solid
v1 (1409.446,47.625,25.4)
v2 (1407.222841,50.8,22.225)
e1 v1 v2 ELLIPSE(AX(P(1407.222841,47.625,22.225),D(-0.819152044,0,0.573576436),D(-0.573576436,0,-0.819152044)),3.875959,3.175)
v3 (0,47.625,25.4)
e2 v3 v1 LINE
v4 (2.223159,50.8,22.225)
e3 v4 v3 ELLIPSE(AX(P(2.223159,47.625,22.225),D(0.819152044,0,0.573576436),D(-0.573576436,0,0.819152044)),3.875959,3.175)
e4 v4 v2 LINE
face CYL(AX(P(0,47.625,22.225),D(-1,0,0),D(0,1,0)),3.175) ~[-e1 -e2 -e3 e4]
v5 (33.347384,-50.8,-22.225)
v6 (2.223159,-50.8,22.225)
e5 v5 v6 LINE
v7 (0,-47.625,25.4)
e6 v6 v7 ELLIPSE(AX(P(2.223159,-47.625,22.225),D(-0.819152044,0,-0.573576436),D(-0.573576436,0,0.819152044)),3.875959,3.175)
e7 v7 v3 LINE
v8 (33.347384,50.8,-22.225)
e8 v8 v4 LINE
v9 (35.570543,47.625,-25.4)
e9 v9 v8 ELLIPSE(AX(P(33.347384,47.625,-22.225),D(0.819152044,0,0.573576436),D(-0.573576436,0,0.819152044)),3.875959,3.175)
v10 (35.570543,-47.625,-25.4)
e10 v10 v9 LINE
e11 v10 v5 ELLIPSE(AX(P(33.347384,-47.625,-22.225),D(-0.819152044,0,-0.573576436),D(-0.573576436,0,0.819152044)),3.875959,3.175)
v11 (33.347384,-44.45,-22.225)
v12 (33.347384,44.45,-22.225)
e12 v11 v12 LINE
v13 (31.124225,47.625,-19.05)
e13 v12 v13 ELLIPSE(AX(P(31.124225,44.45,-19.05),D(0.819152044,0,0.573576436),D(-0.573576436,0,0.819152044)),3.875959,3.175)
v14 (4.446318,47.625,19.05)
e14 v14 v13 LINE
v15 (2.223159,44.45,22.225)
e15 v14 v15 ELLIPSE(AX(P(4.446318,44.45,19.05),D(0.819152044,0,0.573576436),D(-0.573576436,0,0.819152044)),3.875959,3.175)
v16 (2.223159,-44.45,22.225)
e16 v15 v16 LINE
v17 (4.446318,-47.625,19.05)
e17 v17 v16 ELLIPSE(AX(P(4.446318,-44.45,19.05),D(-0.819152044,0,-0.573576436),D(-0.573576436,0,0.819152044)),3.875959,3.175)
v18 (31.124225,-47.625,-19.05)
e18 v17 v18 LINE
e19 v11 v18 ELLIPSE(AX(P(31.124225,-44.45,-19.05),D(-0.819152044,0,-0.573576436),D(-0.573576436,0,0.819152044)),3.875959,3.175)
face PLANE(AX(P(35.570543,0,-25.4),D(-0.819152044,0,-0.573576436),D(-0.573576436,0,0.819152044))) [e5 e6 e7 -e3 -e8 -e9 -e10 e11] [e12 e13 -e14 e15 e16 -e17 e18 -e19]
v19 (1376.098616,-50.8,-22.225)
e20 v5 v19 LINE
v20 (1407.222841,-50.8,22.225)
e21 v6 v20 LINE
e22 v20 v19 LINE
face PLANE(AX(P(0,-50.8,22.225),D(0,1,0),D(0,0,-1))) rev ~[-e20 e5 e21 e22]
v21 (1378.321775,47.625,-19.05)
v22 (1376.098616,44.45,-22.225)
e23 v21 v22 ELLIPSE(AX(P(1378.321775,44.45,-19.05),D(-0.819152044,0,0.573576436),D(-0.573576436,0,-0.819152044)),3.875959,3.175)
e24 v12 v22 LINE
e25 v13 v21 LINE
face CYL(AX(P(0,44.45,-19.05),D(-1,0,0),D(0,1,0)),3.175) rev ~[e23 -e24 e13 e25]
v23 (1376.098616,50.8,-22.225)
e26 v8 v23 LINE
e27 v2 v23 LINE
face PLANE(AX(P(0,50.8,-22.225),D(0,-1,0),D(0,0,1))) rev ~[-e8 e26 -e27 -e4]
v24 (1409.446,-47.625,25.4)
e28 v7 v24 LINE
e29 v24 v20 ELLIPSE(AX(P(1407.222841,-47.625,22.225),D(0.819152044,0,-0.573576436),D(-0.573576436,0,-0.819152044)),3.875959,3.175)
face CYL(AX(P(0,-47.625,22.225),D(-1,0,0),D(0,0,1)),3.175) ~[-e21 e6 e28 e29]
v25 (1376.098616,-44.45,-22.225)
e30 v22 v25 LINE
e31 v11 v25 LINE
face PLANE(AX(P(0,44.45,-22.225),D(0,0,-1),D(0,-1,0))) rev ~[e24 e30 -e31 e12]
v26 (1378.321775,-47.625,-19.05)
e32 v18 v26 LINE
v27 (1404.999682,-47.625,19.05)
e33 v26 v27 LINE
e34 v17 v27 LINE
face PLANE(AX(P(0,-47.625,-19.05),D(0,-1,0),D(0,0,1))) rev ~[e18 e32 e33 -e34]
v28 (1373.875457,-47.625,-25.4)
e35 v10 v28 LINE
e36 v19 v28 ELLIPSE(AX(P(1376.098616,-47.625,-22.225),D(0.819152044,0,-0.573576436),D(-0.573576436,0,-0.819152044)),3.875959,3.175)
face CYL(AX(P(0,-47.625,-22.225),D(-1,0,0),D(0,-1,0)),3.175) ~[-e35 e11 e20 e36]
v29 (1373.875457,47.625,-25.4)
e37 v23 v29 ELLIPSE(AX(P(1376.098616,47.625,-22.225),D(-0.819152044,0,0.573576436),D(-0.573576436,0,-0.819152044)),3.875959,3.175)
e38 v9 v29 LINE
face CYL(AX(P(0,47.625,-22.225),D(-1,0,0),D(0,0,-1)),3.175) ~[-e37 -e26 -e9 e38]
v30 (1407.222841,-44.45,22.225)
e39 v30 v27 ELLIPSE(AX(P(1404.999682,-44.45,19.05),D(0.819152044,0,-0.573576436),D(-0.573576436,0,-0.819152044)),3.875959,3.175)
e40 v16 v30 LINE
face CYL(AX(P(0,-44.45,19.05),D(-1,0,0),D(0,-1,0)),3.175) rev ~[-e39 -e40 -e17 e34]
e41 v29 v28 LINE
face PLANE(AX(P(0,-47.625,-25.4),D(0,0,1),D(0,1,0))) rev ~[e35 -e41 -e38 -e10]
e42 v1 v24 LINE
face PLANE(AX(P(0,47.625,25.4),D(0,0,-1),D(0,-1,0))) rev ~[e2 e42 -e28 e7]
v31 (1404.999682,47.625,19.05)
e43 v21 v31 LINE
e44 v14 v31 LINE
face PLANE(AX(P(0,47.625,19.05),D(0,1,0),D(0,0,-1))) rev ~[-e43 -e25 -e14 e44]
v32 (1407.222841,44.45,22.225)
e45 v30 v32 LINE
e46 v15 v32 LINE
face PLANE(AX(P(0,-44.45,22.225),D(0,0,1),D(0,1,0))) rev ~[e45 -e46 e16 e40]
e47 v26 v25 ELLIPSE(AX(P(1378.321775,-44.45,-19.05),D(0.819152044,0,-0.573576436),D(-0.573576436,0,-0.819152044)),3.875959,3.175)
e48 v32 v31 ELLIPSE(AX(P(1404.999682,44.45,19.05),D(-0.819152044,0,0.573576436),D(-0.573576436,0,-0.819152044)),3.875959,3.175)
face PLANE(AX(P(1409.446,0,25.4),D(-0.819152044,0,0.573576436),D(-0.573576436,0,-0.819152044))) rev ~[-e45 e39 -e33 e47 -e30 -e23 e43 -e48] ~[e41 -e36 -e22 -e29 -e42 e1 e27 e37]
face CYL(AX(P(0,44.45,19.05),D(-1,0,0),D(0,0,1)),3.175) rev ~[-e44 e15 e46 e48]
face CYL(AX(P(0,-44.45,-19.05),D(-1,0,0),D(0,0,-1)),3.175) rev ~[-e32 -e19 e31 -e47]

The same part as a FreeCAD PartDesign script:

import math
import FreeCAD as App
import Part
import Sketcher
from FreeCAD import Vector
Q = App.Units.Quantity


def add_polygon(sketch, points):
    """Adds a closed chain of lines whose ends are joined by coincident constraints."""
    first, n = sketch.GeometryCount, len(points)
    for a, b in zip(points, points[1:] + points[:1]):
        sketch.addGeometry(Part.LineSegment(App.Vector(*a, 0), App.Vector(*b, 0)), False)
    for i in range(n):
        sketch.addConstraint(Sketcher.Constraint("Coincident", first + i, 2, first + (i + 1) % n, 1))

doc = App.newDocument("Part")
body = doc.addObject("PartDesign::Body", "Body")

sketch1 = doc.addObject("Sketcher::SketchObject", "Sketch")
body.addObject(sketch1)
sketch1.AttachmentSupport = (doc.YZ_Plane, [""])
sketch1.MapMode = "FlatFace"
sketch1.addGeometry(Part.LineSegment(Vector(-47.625, -25.4, 0), Vector(47.625, -25.4, 0)), False)
sketch1.addGeometry(Part.ArcOfCircle(Part.Circle(Vector(47.625, -22.225, 0), Vector(0, 0, 1), 3.175), math.radians(-90), math.radians(0)), False)
sketch1.addGeometry(Part.LineSegment(Vector(50.8, -22.225, 0), Vector(50.8, 22.225, 0)), False)
sketch1.addGeometry(Part.ArcOfCircle(Part.Circle(Vector(47.625, 22.225, 0), Vector(0, 0, 1), 3.175), math.radians(0), math.radians(90)), False)
sketch1.addGeometry(Part.LineSegment(Vector(47.625, 25.4, 0), Vector(-47.625, 25.4, 0)), False)
sketch1.addGeometry(Part.ArcOfCircle(Part.Circle(Vector(-47.625, 22.225, 0), Vector(0, 0, 1), 3.175), math.radians(90), math.radians(180)), False)
sketch1.addGeometry(Part.LineSegment(Vector(-50.8, 22.225, 0), Vector(-50.8, -22.225, 0)), False)
sketch1.addGeometry(Part.ArcOfCircle(Part.Circle(Vector(-47.625, -22.225, 0), Vector(0, 0, 1), 3.175), math.radians(180), math.radians(270)), False)
sketch1.addGeometry(Part.ArcOfCircle(Part.Circle(Vector(-44.45, 19.05, 0), Vector(0, 0, 1), 3.175), math.radians(90), math.radians(180)), False)
sketch1.addGeometry(Part.LineSegment(Vector(-44.45, 22.225, 0), Vector(44.45, 22.225, 0)), False)
sketch1.addGeometry(Part.ArcOfCircle(Part.Circle(Vector(44.45, 19.05, 0), Vector(0, 0, 1), 3.175), math.radians(0), math.radians(90)), False)
sketch1.addGeometry(Part.LineSegment(Vector(47.625, 19.05, 0), Vector(47.625, -19.05, 0)), False)
sketch1.addGeometry(Part.ArcOfCircle(Part.Circle(Vector(44.45, -19.05, 0), Vector(0, 0, 1), 3.175), math.radians(-90), math.radians(0)), False)
sketch1.addGeometry(Part.LineSegment(Vector(44.45, -22.225, 0), Vector(-44.45, -22.225, 0)), False)
sketch1.addGeometry(Part.ArcOfCircle(Part.Circle(Vector(-44.45, -19.05, 0), Vector(0, 0, 1), 3.175), math.radians(180), math.radians(270)), False)
sketch1.addGeometry(Part.LineSegment(Vector(-47.625, -19.05, 0), Vector(-47.625, 19.05, 0)), False)
sketch1.addConstraint(Sketcher.Constraint("Tangent", 0, 2, 1, 1))
sketch1.addConstraint(Sketcher.Constraint("Tangent", 1, 2, 2, 1))
sketch1.addConstraint(Sketcher.Constraint("Tangent", 2, 2, 3, 1))
sketch1.addConstraint(Sketcher.Constraint("Tangent", 3, 2, 4, 1))
sketch1.addConstraint(Sketcher.Constraint("Tangent", 4, 2, 5, 1))
sketch1.addConstraint(Sketcher.Constraint("Tangent", 5, 2, 6, 1))
sketch1.addConstraint(Sketcher.Constraint("Tangent", 6, 2, 7, 1))
sketch1.addConstraint(Sketcher.Constraint("Tangent", 7, 2, 0, 1))
sketch1.addConstraint(Sketcher.Constraint("Tangent", 8, 1, 9, 1))
sketch1.addConstraint(Sketcher.Constraint("Tangent", 9, 2, 10, 2))
sketch1.addConstraint(Sketcher.Constraint("Tangent", 10, 1, 11, 1))
sketch1.addConstraint(Sketcher.Constraint("Tangent", 11, 2, 12, 2))
sketch1.addConstraint(Sketcher.Constraint("Tangent", 12, 1, 13, 1))
sketch1.addConstraint(Sketcher.Constraint("Tangent", 13, 2, 14, 2))
sketch1.addConstraint(Sketcher.Constraint("Tangent", 14, 1, 15, 1))
sketch1.addConstraint(Sketcher.Constraint("Tangent", 15, 2, 8, 2))
sketch1.addConstraint(Sketcher.Constraint("Horizontal", 0))
sketch1.addConstraint(Sketcher.Constraint("Vertical", 2))
sketch1.addConstraint(Sketcher.Constraint("Horizontal", 4))
sketch1.addConstraint(Sketcher.Constraint("Vertical", 6))
sketch1.addConstraint(Sketcher.Constraint("Horizontal", 9))
sketch1.addConstraint(Sketcher.Constraint("Vertical", 11))
sketch1.addConstraint(Sketcher.Constraint("Horizontal", 13))
sketch1.addConstraint(Sketcher.Constraint("Vertical", 15))
sketch1.addConstraint(Sketcher.Constraint("Equal", 1, 3))
sketch1.addConstraint(Sketcher.Constraint("Equal", 3, 5))
sketch1.addConstraint(Sketcher.Constraint("Equal", 5, 7))
sketch1.addConstraint(Sketcher.Constraint("Equal", 7, 8))
sketch1.addConstraint(Sketcher.Constraint("Equal", 8, 10))
sketch1.addConstraint(Sketcher.Constraint("Equal", 10, 12))
sketch1.addConstraint(Sketcher.Constraint("Equal", 12, 14))
sketch1.addConstraint(Sketcher.Constraint("Symmetric", 1, 3, 5, 3, -1, 1))
sketch1.addConstraint(Sketcher.Constraint("Symmetric", 8, 3, 12, 3, -1, 1))
sketch1.addConstraint(Sketcher.Constraint("Horizontal", 5, 2, 8, 1))
sketch1.addConstraint(Sketcher.Constraint("Vertical", 3, 2, 10, 1))
sketch1.addConstraint(Sketcher.Constraint("DistanceX", 9, 1, 9, 2, Q("3.5 in")))
sketch1.addConstraint(Sketcher.Constraint("DistanceY", 11, 2, 11, 1, Q("1.5 in")))
sketch1.addConstraint(Sketcher.Constraint("DistanceY", 0, 2, -1, 1, Q("1 in")))
pad1 = doc.addObject("PartDesign::Pad", "Pad")
body.addObject(pad1)
pad1.Profile = sketch1
pad1.Length = Q("55.49 in")

sketch2 = doc.addObject("Sketcher::SketchObject", "Sketch001")
body.addObject(sketch2)
sketch2.AttachmentSupport = (doc.XZ_Plane, [""])
sketch2.MapMode = "FlatFace"
add_polygon(sketch2, [(0, 25.4), (0, -25.4), (35.570543, -25.4)])
add_polygon(sketch2, [(1409.446, 25.4), (1373.875457, -25.4), (1409.446, -25.4)])
sketch2.addConstraint(Sketcher.Constraint("Vertical", 0))
sketch2.addConstraint(Sketcher.Constraint("Horizontal", 1))
sketch2.addConstraint(Sketcher.Constraint("Horizontal", 4))
sketch2.addConstraint(Sketcher.Constraint("Vertical", 5))
sketch2.addConstraint(Sketcher.Constraint("Symmetric", 0, 2, 2, 2, -1, 1))
sketch2.addConstraint(Sketcher.Constraint("Horizontal", 1, 2, 3, 2))
sketch2.addConstraint(Sketcher.Constraint("Horizontal", 2, 2, 5, 2))
sketch2.addConstraint(Sketcher.Constraint("Equal", 1, 4))
sketch2.addConstraint(Sketcher.Constraint("DistanceY", 0, 2, 0, 1, Q("2 in")))
sketch2.addConstraint(Sketcher.Constraint("Angle", 2, Q("125 deg")))
sketch2.addConstraint(Sketcher.Constraint("DistanceX", -1, 1, 4, 2, Q("55.49 in")))
pocket1 = doc.addObject("PartDesign::Pocket", "Pocket")
body.addObject(pocket1)
pocket1.Profile = sketch2
pocket1.Type = "ThroughAll"
pocket1.Midplane = True

doc.recompute()
